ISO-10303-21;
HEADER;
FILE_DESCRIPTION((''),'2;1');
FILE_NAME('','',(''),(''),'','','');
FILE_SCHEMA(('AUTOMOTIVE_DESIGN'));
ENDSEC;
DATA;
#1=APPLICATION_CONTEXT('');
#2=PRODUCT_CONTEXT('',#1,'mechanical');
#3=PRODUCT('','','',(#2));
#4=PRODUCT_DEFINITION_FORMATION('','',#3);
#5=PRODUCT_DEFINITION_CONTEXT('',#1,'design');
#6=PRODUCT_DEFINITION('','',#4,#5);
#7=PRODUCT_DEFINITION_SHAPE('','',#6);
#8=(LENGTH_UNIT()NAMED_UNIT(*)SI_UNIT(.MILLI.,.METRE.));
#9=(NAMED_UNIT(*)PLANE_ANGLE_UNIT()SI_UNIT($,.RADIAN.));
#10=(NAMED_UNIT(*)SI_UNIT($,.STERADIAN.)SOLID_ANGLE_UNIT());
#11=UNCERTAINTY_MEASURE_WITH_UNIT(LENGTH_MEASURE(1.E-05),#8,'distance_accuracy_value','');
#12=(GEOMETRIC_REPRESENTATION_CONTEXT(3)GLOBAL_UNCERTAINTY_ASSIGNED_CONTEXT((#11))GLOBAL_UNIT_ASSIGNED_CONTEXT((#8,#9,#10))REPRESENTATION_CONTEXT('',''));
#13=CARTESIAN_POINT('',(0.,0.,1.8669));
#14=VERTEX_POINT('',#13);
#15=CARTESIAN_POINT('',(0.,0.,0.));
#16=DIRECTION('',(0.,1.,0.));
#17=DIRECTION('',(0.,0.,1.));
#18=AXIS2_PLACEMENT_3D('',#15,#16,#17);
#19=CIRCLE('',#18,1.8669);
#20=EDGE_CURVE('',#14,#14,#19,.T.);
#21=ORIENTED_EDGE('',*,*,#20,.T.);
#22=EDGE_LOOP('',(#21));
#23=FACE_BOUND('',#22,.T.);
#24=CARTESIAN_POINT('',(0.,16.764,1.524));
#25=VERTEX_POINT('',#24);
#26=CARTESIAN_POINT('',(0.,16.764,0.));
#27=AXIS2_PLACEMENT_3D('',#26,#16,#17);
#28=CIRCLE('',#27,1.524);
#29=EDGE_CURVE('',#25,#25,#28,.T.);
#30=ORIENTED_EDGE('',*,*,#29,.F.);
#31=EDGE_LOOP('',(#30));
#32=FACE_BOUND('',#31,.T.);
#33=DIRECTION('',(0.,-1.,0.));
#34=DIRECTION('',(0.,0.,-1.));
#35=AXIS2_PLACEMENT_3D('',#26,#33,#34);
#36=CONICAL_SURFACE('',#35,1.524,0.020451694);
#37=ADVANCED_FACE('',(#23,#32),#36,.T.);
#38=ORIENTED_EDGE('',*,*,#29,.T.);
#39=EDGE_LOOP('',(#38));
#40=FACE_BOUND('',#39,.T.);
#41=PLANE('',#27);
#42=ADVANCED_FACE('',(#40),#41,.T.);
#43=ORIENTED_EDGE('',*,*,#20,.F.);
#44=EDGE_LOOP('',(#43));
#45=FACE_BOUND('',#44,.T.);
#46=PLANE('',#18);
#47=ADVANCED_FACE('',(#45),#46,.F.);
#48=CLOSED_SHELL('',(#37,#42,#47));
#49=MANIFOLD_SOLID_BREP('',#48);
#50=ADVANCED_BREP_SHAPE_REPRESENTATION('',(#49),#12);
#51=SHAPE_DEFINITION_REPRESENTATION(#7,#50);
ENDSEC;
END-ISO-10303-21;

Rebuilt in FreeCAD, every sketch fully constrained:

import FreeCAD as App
import Part
import Sketcher
Q = App.Units.Quantity

doc = App.newDocument("Part")
params = doc.addObject("Spreadsheet::Sheet", "Params")
for row, (alias, value) in enumerate([
    ("sketch1_diameter", "0.12 in"),
    ("sketch2_diameter", "0.147 in"),
], start=1):
    params.set(f"A{row}", alias)
    params.set(f"B{row}", "=" + value)
    params.setAlias(f"B{row}", alias)

body = doc.addObject("PartDesign::Body", "Body")

# Sketch on XZ plane
sketch1 = doc.addObject("Sketcher::SketchObject", "Sketch")
body.addObject(sketch1)
sketch1.AttachmentSupport = (doc.XZ_Plane, [""])
sketch1.MapMode = "FlatFace"
sketch1.AttachmentOffset = App.Placement(App.Vector(0, 0, -0.66 * 25.4), App.Rotation())
sketch1.addGeometry(Part.Circle(App.Vector(0, 0, 0), App.Vector(0, 0, 1), 1.5), False)
sketch1.addConstraint([
    Sketcher.Constraint("Coincident", 0, 3, -1, 1),
    Sketcher.Constraint("Diameter", 0, Q("0.12 in")),
])
sketch1.setExpression("Constraints[1]", "Params.sketch1_diameter")

# Sketch on XZ plane
sketch2 = doc.addObject("Sketcher::SketchObject", "Sketch001")
body.addObject(sketch2)
sketch2.AttachmentSupport = (doc.XZ_Plane, [""])
sketch2.MapMode = "FlatFace"
sketch2.addGeometry(Part.Circle(App.Vector(0, 0, 0), App.Vector(0, 0, 1), 1.9), False)
sketch2.addConstraint([
    Sketcher.Constraint("Coincident", 0, 3, -1, 1),
    Sketcher.Constraint("Diameter", 0, Q("0.147 in")),
])
sketch2.setExpression("Constraints[1]", "Params.sketch2_diameter")

additiveloft = doc.addObject("PartDesign::AdditiveLoft", "AdditiveLoft")
body.addObject(additiveloft)
additiveloft.Profile = sketch1
additiveloft.Sections = [sketch2]

doc.recompute()
